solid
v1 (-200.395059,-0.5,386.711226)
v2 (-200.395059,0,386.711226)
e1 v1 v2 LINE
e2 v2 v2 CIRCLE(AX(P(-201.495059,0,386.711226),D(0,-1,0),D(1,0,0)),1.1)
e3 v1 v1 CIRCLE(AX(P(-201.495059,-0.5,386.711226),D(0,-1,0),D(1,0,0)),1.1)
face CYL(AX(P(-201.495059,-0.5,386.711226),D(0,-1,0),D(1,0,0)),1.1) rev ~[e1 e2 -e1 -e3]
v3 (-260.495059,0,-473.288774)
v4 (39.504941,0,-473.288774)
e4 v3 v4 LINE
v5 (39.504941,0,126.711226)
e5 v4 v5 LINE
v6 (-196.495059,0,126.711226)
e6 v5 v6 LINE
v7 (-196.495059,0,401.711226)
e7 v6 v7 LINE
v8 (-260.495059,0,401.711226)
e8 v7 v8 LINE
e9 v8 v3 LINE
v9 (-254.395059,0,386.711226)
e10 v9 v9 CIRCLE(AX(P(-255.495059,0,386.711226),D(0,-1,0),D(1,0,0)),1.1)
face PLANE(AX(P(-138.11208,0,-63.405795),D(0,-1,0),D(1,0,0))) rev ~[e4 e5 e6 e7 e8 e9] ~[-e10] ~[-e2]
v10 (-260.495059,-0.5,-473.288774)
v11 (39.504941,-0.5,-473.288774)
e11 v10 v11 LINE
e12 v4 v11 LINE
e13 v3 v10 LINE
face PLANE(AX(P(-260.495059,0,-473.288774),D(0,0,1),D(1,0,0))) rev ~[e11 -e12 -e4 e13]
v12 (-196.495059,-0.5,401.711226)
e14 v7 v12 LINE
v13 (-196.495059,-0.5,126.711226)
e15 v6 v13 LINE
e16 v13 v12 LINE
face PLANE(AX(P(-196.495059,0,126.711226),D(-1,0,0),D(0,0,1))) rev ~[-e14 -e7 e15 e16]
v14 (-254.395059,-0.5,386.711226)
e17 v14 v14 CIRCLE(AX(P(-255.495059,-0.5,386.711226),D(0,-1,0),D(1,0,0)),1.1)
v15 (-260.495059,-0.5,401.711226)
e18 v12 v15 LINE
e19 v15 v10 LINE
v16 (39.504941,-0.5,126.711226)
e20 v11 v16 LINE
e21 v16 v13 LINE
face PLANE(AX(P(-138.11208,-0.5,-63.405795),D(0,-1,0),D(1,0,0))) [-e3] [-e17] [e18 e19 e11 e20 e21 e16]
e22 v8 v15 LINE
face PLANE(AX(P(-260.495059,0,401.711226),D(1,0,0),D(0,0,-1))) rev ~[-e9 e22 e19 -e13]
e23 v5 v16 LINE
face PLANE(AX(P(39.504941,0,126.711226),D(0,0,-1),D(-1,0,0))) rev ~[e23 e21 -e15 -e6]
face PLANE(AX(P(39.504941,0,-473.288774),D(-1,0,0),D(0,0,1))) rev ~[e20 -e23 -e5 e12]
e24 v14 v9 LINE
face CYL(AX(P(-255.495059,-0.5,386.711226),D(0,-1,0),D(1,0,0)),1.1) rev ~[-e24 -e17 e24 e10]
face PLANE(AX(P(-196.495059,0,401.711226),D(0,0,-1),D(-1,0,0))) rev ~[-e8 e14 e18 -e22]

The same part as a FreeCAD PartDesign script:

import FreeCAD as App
import Part
import Sketcher
from FreeCAD import Vector

doc = App.newDocument("Part")
body = doc.addObject("PartDesign::Body", "Body")

# Sketch on XZ plane
sketch1 = body.newObject("Sketcher::SketchObject", "Sketch")
sketch1.AttachmentSupport = (doc.getObject("XZ_Plane"), [""])
sketch1.MapMode = "FlatFace"
sketch1.addGeometry([
    Part.LineSegment(Vector(39.504941, 126.711226, 0), Vector(-196.495059, 126.711226, 0)),  # 0
    Part.LineSegment(Vector(-196.495059, 126.711226, 0), Vector(-196.495059, 401.711226, 0)),  # 1
    Part.LineSegment(Vector(-196.495059, 401.711226, 0), Vector(-260.495059, 401.711226, 0)),  # 2
    Part.LineSegment(Vector(-260.495059, 401.711226, 0), Vector(-260.495059, -473.288774, 0)),  # 3
    Part.LineSegment(Vector(-260.495059, -473.288774, 0), Vector(39.504941, -473.288774, 0)),  # 4
    Part.LineSegment(Vector(39.504941, -473.288774, 0), Vector(39.504941, 126.711226, 0)),  # 5
], False)
sketch1.addConstraint([
    Sketcher.Constraint("Coincident", 0, 2, 1, 1),
    Sketcher.Constraint("Coincident", 1, 2, 2, 1),
    Sketcher.Constraint("Coincident", 2, 2, 3, 1),
    Sketcher.Constraint("Coincident", 3, 2, 4, 1),
    Sketcher.Constraint("Coincident", 4, 2, 5, 1),
    Sketcher.Constraint("Coincident", 5, 2, 0, 1),
    Sketcher.Constraint("Horizontal", 0),
    Sketcher.Constraint("Vertical", 1),
    Sketcher.Constraint("Horizontal", 2),
    Sketcher.Constraint("Vertical", 3),
    Sketcher.Constraint("Horizontal", 4),
    Sketcher.Constraint("Vertical", 5),
    Sketcher.Constraint("DistanceX", 0, 2, 0, 1, 236.0),
    Sketcher.Constraint("DistanceX", 2, 2, 2, 1, 64.0),
    Sketcher.Constraint("DistanceY", 1, 1, 1, 2, 275.0),
    Sketcher.Constraint("DistanceY", 3, 2, 3, 1, 875.0),
    Sketcher.Constraint("DistanceX", 0, 2, -1, 1, 196.495059),
    Sketcher.Constraint("DistanceY", -1, 1, 0, 2, 126.711226),
])
pad1 = body.newObject("PartDesign::Pad", "Pad")
pad1.Profile = sketch1
pad1.Length = 0.5

# Sketch on XZ plane
sketch2 = body.newObject("Sketcher::SketchObject", "Sketch001")
sketch2.AttachmentSupport = (doc.getObject("XZ_Plane"), [""])
sketch2.MapMode = "FlatFace"
sketch2.AttachmentOffset = App.Placement(Vector(0, 0, 0.5), App.Rotation())
sketch2.addGeometry([
    Part.Circle(Vector(-255.495059, 386.711226, 0), Vector(0, 0, 1), 1.1),
    Part.Circle(Vector(-201.495059, 386.711226, 0), Vector(0, 0, 1), 1.1),
], False)
sketch2.addConstraint([
    Sketcher.Constraint("Equal", 0, 1),
    Sketcher.Constraint("Horizontal", 0, 3, 1, 3),
    Sketcher.Constraint("Diameter", 0, 2.2),
    Sketcher.Constraint("DistanceX", 0, 3, 1, 3, 54.0),
    Sketcher.Constraint("DistanceX", 0, 3, -1, 1, 255.495059),
    Sketcher.Constraint("DistanceY", -1, 1, 0, 3, 386.711226),
])
pocket1 = body.newObject("PartDesign::Pocket", "Pocket")
pocket1.Profile = sketch2
pocket1.Type = "ThroughAll"

doc.recompute()
